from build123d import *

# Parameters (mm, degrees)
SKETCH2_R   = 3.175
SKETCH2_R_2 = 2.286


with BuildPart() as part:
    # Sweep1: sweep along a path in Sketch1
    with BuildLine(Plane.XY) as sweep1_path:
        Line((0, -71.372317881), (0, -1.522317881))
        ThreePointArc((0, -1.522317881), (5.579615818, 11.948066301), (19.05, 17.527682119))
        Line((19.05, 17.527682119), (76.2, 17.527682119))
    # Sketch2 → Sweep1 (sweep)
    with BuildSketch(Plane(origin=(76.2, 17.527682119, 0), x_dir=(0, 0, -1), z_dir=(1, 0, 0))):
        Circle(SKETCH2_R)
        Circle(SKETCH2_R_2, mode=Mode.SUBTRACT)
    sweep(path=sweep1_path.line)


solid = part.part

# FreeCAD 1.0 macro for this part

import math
import FreeCAD as App
import Part
import Sketcher
Q = App.Units.Quantity

doc = App.newDocument("Part")
body = doc.addObject("PartDesign::Body", "Body")

# Sketch on YZ plane
sketch1 = body.newObject("Sketcher::SketchObject", "Sketch")
sketch1.AttachmentSupport = (doc.getObject("YZ_Plane"), [""])
sketch1.MapMode = "FlatFace"
sketch1.AttachmentOffset = App.Placement(App.Vector(0, 0, 3 * 25.4), App.Rotation())
sketch1.addGeometry([
    Part.Circle(App.Vector(17.527682, 0, 0), App.Vector(0, 0, 1), 3.175),
    Part.Circle(App.Vector(17.527682, 0, 0), App.Vector(0, 0, 1), 2.286),
], False)
sketch1.addConstraint([
    Sketcher.Constraint("Coincident", 1, 3, 0, 3),
    Sketcher.Constraint("PointOnObject", 0, 3, -1),
    Sketcher.Constraint("Diameter", 0, Q("0.25 in")),
    Sketcher.Constraint("Diameter", 1, Q("0.18 in")),
    Sketcher.Constraint("DistanceX", -1, 1, 0, 3, 17.527682),
])

# Sketch on XY plane
sketch2 = body.newObject("Sketcher::SketchObject", "Sketch001")
sketch2.AttachmentSupport = (doc.getObject("XY_Plane"), [""])
sketch2.MapMode = "FlatFace"
sketch2.addGeometry([
    Part.LineSegment(App.Vector(0, -71.372318, 0), App.Vector(0, -1.522318, 0)),
    Part.ArcOfCircle(Part.Circle(App.Vector(19.05, -1.522318, 0), App.Vector(0, 0, 1), 19.05), math.radians(90), math.radians(180)),
    Part.LineSegment(App.Vector(19.05, 17.527682, 0), App.Vector(76.2, 17.527682, 0)),
], False)
sketch2.addConstraint([
    Sketcher.Constraint("Tangent", 0, 2, 1, 2),
    Sketcher.Constraint("Tangent", 1, 1, 2, 1),
    Sketcher.Constraint("Vertical", 0),
    Sketcher.Constraint("Horizontal", 2),
    Sketcher.Constraint("PointOnObject", 0, 1, -2),
    Sketcher.Constraint("Radius", 1, Q("0.75 in")),
    Sketcher.Constraint("DistanceX", -1, 1, 2, 2, Q("3 in")),
    Sketcher.Constraint("DistanceY", 0, 1, 0, 2, Q("2.75 in")),
    Sketcher.Constraint("DistanceY", 1, 3, -1, 1, 1.522318),
])
doc.recompute()

additivepipe = body.newObject("PartDesign::AdditivePipe", "AdditivePipe")
additivepipe.Profile = sketch1
additivepipe.Spine = (sketch2, ["Edge1", "Edge2", "Edge3"])

doc.recompute()
